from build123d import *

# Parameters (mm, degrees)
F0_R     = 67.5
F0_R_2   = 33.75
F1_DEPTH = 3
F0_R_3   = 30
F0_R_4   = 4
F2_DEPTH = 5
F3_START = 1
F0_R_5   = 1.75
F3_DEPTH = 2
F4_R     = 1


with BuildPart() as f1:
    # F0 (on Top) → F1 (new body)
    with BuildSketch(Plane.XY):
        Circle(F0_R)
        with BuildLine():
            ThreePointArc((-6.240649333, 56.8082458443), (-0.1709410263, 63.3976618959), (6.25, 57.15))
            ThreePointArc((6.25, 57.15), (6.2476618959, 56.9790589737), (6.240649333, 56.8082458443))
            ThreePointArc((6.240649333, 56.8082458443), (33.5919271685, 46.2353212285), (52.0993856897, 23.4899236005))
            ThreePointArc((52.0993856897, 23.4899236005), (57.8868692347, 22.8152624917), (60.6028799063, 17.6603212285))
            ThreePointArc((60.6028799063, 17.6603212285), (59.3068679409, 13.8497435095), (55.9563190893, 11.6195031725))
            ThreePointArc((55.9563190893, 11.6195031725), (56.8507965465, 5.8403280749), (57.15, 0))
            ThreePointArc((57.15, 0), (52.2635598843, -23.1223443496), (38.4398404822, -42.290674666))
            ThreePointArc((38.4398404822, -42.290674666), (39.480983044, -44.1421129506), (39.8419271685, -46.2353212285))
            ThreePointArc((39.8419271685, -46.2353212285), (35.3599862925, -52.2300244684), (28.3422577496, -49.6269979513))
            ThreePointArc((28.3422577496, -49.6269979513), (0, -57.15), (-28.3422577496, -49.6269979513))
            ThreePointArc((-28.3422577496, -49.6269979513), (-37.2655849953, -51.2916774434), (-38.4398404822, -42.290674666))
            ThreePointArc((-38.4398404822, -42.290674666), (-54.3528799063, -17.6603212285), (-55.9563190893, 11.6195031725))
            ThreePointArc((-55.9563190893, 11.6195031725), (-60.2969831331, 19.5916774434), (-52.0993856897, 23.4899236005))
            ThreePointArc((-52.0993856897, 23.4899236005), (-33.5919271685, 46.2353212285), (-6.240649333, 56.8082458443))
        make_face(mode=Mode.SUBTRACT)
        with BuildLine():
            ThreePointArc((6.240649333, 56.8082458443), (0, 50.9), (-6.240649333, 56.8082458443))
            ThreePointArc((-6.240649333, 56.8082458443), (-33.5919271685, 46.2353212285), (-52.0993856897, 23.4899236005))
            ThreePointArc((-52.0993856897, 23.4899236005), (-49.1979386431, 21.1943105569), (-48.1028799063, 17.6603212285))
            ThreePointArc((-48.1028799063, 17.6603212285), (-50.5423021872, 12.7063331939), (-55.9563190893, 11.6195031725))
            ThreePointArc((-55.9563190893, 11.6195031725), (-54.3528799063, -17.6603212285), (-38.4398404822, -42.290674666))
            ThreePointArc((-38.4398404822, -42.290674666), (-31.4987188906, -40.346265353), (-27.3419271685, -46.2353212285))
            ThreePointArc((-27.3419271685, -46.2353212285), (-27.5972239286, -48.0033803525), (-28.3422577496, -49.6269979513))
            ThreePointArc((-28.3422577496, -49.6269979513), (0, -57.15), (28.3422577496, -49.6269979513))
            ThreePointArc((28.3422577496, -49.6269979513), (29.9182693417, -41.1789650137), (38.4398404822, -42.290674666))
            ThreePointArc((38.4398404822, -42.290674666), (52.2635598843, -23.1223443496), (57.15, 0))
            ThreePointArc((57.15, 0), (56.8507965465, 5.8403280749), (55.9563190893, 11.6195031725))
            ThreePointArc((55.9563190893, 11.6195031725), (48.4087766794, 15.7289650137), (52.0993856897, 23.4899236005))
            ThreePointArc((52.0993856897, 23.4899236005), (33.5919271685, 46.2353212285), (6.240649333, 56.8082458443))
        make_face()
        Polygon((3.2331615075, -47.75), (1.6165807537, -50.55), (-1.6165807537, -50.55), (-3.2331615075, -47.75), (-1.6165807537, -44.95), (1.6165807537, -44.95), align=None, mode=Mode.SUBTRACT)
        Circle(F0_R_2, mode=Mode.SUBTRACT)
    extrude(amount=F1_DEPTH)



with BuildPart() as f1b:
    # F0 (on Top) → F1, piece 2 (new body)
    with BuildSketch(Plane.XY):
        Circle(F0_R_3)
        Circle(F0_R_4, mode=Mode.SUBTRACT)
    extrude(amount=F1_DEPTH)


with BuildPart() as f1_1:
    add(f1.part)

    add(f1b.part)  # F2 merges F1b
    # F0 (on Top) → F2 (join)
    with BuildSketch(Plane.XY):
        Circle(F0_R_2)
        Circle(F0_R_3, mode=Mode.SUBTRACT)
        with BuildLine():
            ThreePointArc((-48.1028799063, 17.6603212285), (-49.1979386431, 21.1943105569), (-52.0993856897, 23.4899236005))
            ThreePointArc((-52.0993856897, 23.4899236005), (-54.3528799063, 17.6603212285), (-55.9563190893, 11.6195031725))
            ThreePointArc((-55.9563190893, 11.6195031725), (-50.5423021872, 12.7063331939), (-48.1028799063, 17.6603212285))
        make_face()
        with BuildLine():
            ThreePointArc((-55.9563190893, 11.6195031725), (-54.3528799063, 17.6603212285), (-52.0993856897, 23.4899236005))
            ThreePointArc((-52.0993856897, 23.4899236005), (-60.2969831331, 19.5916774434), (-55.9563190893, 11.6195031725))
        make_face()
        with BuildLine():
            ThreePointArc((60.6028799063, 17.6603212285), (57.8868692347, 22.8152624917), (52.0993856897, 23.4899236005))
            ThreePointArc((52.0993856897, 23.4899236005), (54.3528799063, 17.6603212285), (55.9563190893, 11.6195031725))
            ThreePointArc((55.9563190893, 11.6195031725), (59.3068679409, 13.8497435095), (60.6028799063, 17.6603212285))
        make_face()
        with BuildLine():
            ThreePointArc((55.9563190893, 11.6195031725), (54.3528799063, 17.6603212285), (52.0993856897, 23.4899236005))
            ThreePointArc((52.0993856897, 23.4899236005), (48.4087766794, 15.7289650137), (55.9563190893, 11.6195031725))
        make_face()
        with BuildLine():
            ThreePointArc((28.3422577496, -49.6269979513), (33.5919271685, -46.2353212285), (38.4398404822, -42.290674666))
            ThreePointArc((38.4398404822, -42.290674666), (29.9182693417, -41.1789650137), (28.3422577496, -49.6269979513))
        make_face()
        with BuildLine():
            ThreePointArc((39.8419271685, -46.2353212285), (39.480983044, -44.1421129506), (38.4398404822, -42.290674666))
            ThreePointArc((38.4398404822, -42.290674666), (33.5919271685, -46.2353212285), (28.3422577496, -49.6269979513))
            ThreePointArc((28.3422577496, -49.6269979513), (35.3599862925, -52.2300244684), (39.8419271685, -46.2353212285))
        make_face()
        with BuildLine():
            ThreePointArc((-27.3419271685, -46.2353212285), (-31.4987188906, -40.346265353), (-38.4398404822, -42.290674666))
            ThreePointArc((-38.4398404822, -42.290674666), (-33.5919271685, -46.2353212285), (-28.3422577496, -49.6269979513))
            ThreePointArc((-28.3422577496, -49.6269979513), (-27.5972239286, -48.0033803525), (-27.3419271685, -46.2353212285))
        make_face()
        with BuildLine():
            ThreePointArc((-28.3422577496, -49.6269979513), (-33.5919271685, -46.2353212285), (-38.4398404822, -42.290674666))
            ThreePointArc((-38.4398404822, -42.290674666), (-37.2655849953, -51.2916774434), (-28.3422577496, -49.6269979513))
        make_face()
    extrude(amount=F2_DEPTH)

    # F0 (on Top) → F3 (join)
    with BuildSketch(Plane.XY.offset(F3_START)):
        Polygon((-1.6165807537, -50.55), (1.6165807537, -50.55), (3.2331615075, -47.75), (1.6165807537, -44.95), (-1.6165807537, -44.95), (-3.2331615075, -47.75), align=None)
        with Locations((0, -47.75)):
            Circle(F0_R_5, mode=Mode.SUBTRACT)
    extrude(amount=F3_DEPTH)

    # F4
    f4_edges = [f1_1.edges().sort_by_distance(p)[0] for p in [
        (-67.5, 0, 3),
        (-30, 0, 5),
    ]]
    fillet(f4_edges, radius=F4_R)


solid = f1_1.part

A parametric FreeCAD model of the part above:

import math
import FreeCAD as App
import Part
import Sketcher
Q = App.Units.Quantity


def edges_at(feature, points):
    """Names of the edges that pass closest to the given points."""
    edges = feature.Shape.Edges
    near = lambda p: min(range(len(edges)), key=lambda i: edges[i].distToShape(Part.Vertex(*p))[0])
    return sorted({f"Edge{near(p) + 1}" for p in points})


def add_polygon(sketch, points):
    """Adds a closed chain of lines whose ends are joined by coincident constraints."""
    first, n = sketch.GeometryCount, len(points)
    for a, b in zip(points, points[1:] + points[:1]):
        sketch.addGeometry(Part.LineSegment(App.Vector(*a, 0), App.Vector(*b, 0)), False)
    for i in range(n):
        sketch.addConstraint(Sketcher.Constraint("Coincident", first + i, 2, first + (i + 1) % n, 1))

doc = App.newDocument("Part")
body = doc.addObject("PartDesign::Body", "Body")

# Sketch on XY plane
sketch1 = body.newObject("Sketcher::SketchObject", "Sketch")
sketch1.AttachmentSupport = (doc.getObject("XY_Plane"), [""])
sketch1.MapMode = "FlatFace"
sketch1.addGeometry(Part.Circle(App.Vector(0, 0, 0), App.Vector(0, 0, 1), 67.5), False)  # 0
sketch1.addGeometry(Part.ArcOfCircle(Part.Circle(App.Vector(-33.59, -46.24, 0), App.Vector(0, 0, 1), 6.25), math.radians(141), math.radians(327)), False)  # 1
sketch1.addGeometry(Part.ArcOfCircle(Part.Circle(App.Vector(-33.59, -46.24, 0), App.Vector(0, 0, 1), 6.25), math.radians(0), math.radians(141)), False)  # 2
sketch1.addGeometry(Part.ArcOfCircle(Part.Circle(App.Vector(-33.59, -46.24, 0), App.Vector(0, 0, 1), 6.25), math.radians(-33), math.radians(0)), False)  # 3
add_polygon(sketch1, [(1.62, -44.95), (3.23, -47.75), (1.62, -50.55), (-1.62, -50.55), (-3.23, -47.75), (-1.62, -44.95)])  # lines 4-9
sketch1.addGeometry(Part.Circle(App.Vector(0, 0, 0), App.Vector(0, 0, 1), 33.75), False)  # 10
sketch1.addGeometry(Part.ArcOfCircle(Part.Circle(App.Vector(33.59, -46.24, 0), App.Vector(0, 0, 1), 6.25), math.radians(-147), math.radians(0)), False)  # 11
sketch1.addGeometry(Part.ArcOfCircle(Part.Circle(App.Vector(33.59, -46.24, 0), App.Vector(0, 0, 1), 6.25), math.radians(39), math.radians(213)), False)  # 12
sketch1.addGeometry(Part.ArcOfCircle(Part.Circle(App.Vector(33.59, -46.24, 0), App.Vector(0, 0, 1), 6.25), math.radians(0), math.radians(39)), False)  # 13
sketch1.addGeometry(Part.ArcOfCircle(Part.Circle(App.Vector(-54.35, 17.66, 0), App.Vector(0, 0, 1), 6.25), math.radians(69), math.radians(255)), False)  # 14
sketch1.addGeometry(Part.ArcOfCircle(Part.Circle(App.Vector(-54.35, 17.66, 0), App.Vector(0, 0, 1), 6.25), math.radians(0), math.radians(69)), False)  # 15
sketch1.addGeometry(Part.ArcOfCircle(Part.Circle(App.Vector(-54.35, 17.66, 0), App.Vector(0, 0, 1), 6.25), math.radians(-105), math.radians(0)), False)  # 16
sketch1.addGeometry(Part.ArcOfCircle(Part.Circle(App.Vector(0, 57.15, 0), App.Vector(0, 0, 1), 6.25), math.radians(-3.13), math.radians(0)), False)  # 17
sketch1.addGeometry(Part.ArcOfCircle(Part.Circle(App.Vector(0, 57.15, 0), App.Vector(0, 0, 1), 6.25), math.radians(-177), math.radians(-3)), False)  # 18
sketch1.addGeometry(Part.ArcOfCircle(Part.Circle(App.Vector(0, 57.15, 0), App.Vector(0, 0, 1), 6.25), math.radians(0), math.radians(183)), False)  # 19
sketch1.addGeometry(Part.ArcOfCircle(Part.Circle(App.Vector(54.35, 17.66, 0), App.Vector(0, 0, 1), 6.25), math.radians(-75), math.radians(0)), False)  # 20
sketch1.addGeometry(Part.ArcOfCircle(Part.Circle(App.Vector(54.35, 17.66, 0), App.Vector(0, 0, 1), 6.25), math.radians(111), math.radians(285)), False)  # 21
sketch1.addGeometry(Part.ArcOfCircle(Part.Circle(App.Vector(54.35, 17.66, 0), App.Vector(0, 0, 1), 6.25), math.radians(0), math.radians(111)), False)  # 22
sketch1.addConstraint(Sketcher.Constraint("Tangent", 1, 1, 2, 2))
sketch1.addConstraint(Sketcher.Constraint("Tangent", 2, 1, 3, 2))
sketch1.addConstraint(Sketcher.Constraint("Tangent", 3, 1, 1, 2))
sketch1.addConstraint(Sketcher.Constraint("Tangent", 11, 1, 12, 2))
sketch1.addConstraint(Sketcher.Constraint("Tangent", 12, 1, 13, 2))
sketch1.addConstraint(Sketcher.Constraint("Tangent", 13, 1, 11, 2))
sketch1.addConstraint(Sketcher.Constraint("Tangent", 14, 1, 15, 2))
sketch1.addConstraint(Sketcher.Constraint("Tangent", 15, 1, 16, 2))
sketch1.addConstraint(Sketcher.Constraint("Tangent", 16, 1, 14, 2))
sketch1.addConstraint(Sketcher.Constraint("Tangent", 17, 1, 18, 2))
sketch1.addConstraint(Sketcher.Constraint("Tangent", 18, 1, 19, 2))
sketch1.addConstraint(Sketcher.Constraint("Tangent", 19, 1, 17, 2))
sketch1.addConstraint(Sketcher.Constraint("Tangent", 20, 1, 21, 2))
sketch1.addConstraint(Sketcher.Constraint("Tangent", 21, 1, 22, 2))
sketch1.addConstraint(Sketcher.Constraint("Tangent", 22, 1, 20, 2))
sketch1.addConstraint(Sketcher.Constraint("Horizontal", 6))
sketch1.addConstraint(Sketcher.Constraint("Horizontal", 9))
sketch1.addConstraint(Sketcher.Constraint("Coincident", 0, 3, -1, 1))
sketch1.addConstraint(Sketcher.Constraint("Coincident", 10, 3, -1, 1))
sketch1.addConstraint(Sketcher.Constraint("Equal", 3, 11))
sketch1.addConstraint(Sketcher.Constraint("Equal", 13, 14))
sketch1.addConstraint(Sketcher.Constraint("Equal", 16, 17))
sketch1.addConstraint(Sketcher.Constraint("Equal", 19, 20))
sketch1.addConstraint(Sketcher.Constraint("Symmetric", 1, 3, 11, 3, -2))
sketch1.addConstraint(Sketcher.Constraint("Symmetric", 14, 3, 20, 3, -2))
sketch1.addConstraint(Sketcher.Constraint("Symmetric", 4, 2, 7, 2, -2))
sketch1.addConstraint(Sketcher.Constraint("Symmetric", 17, 1, 18, 1, -2))
sketch1.addConstraint(Sketcher.Constraint("Parallel", 4, 7))
sketch1.addConstraint(Sketcher.Constraint("Parallel", 5, 8))
sketch1.addConstraint(Sketcher.Constraint("Horizontal", 13, 3, 2, 1))
sketch1.addConstraint(Sketcher.Constraint("Horizontal", 3, 1, 11, 1))
sketch1.addConstraint(Sketcher.Constraint("Horizontal", 1, 1, 12, 1))
sketch1.addConstraint(Sketcher.Constraint("Horizontal", 2, 1, 13, 1))
sketch1.addConstraint(Sketcher.Constraint("Horizontal", 22, 3, 15, 1))
sketch1.addConstraint(Sketcher.Constraint("Horizontal", 18, 3, 19, 1))
sketch1.addConstraint(Sketcher.Constraint("Horizontal", 16, 1, 20, 1))
sketch1.addConstraint(Sketcher.Constraint("Horizontal", 14, 1, 21, 1))
sketch1.addConstraint(Sketcher.Constraint("Horizontal", 15, 1, 22, 1))
sketch1.addConstraint(Sketcher.Constraint("Vertical", 6, 2, 8, 2))
sketch1.addConstraint(Sketcher.Constraint("Vertical", 5, 2, 9, 2))
sketch1.addConstraint(Sketcher.Constraint("Diameter", 0, Q("135 mm")))
sketch1.addConstraint(Sketcher.Constraint("Diameter", 10, Q("67.5 mm")))
sketch1.addConstraint(Sketcher.Constraint("Angle", 4, Q("-60 deg")))
sketch1.addConstraint(Sketcher.Constraint("Radius", 1, Q("6.25 mm")))
sketch1.addConstraint(Sketcher.Constraint("DistanceY", 5, 2, 4, 2, Q("2.8 mm")))
sketch1.addConstraint(Sketcher.Constraint("DistanceY", -1, 1, 17, 3, Q("57.15 mm")))
sketch1.addConstraint(Sketcher.Constraint("DistanceY", 4, 2, -1, 1, Q("47.75 mm")))
sketch1.addConstraint(Sketcher.Constraint("DistanceX", 6, 2, 6, 1, Q("3.233162 mm")))
sketch1.addConstraint(Sketcher.Constraint("DistanceX", 18, 1, 17, 1, Q("12.481299 mm")))
sketch1.addConstraint(Sketcher.Constraint("DistanceY", 1, 3, -1, 1, Q("46.235321 mm")))
sketch1.addConstraint(Sketcher.Constraint("DistanceX", 14, 3, -1, 1, Q("54.35288 mm")))
sketch1.addConstraint(Sketcher.Constraint("DistanceY", -1, 1, 14, 3, Q("17.660321 mm")))
sketch1.addConstraint(Sketcher.Constraint("DistanceX", 1, 1, -1, 1, Q("38.43984 mm")))
sketch1.addConstraint(Sketcher.Constraint("DistanceX", 16, 1, -1, 1, Q("55.956319 mm")))
sketch1.addConstraint(Sketcher.Constraint("DistanceX", 3, 1, 2, 1, Q("1.000331 mm")))
sketch1.addConstraint(Sketcher.Constraint("DistanceX", 2, 1, 4, 2, Q("30.575089 mm")))
sketch1.addConstraint(Sketcher.Constraint("DistanceY", 16, 1, 14, 1, Q("11.87042 mm")))
pad1 = body.newObject("PartDesign::Pad", "Pad")
pad1.Profile = sketch1
pad1.Length = 3
body2 = doc.addObject("PartDesign::Body", "Body001")

# Sketch on XY plane
sketch2 = body2.newObject("Sketcher::SketchObject", "Sketch001")
sketch2.AttachmentSupport = (doc.getObject("XY_Plane001"), [""])
sketch2.MapMode = "FlatFace"
sketch2.addGeometry(Part.Circle(App.Vector(0, 0, 0), App.Vector(0, 0, 1), 30), False)
sketch2.addGeometry(Part.Circle(App.Vector(0, 0, 0), App.Vector(0, 0, 1), 4), False)
sketch2.addConstraint(Sketcher.Constraint("Coincident", 0, 3, -1, 1))
sketch2.addConstraint(Sketcher.Constraint("Coincident", 1, 3, -1, 1))
sketch2.addConstraint(Sketcher.Constraint("Diameter", 0, Q("60 mm")))
sketch2.addConstraint(Sketcher.Constraint("Diameter", 1, Q("8 mm")))
pad2 = body2.newObject("PartDesign::Pad", "Pad001")
pad2.Profile = sketch2
pad2.Length = 3
body.AllowCompound = True
doc.recompute()

boolean = body.newObject("PartDesign::Boolean", "Boolean")
boolean.Type = "Fuse"
boolean.addObjects([body2])

# Sketch on XY plane
sketch3 = body.newObject("Sketcher::SketchObject", "Sketch002")
sketch3.AttachmentSupport = (doc.getObject("XY_Plane"), [""])
sketch3.MapMode = "FlatFace"
sketch3.addGeometry(Part.Circle(App.Vector(0, 0, 0), App.Vector(0, 0, 1), 33.8), False)
sketch3.addGeometry(Part.Circle(App.Vector(0, 0, 0), App.Vector(0, 0, 1), 30), False)
sketch3.addGeometry(Part.ArcOfCircle(Part.Circle(App.Vector(-54.4, 17.7, 0), App.Vector(0, 0, 1), 6.2), math.radians(0), math.radians(69)), False)
sketch3.addGeometry(Part.ArcOfCircle(Part.Circle(App.Vector(-54.4, 17.7, 0), App.Vector(0, 0, 1), 6.2), math.radians(69), math.radians(255)), False)
sketch3.addGeometry(Part.ArcOfCircle(Part.Circle(App.Vector(-54.4, 17.7, 0), App.Vector(0, 0, 1), 6.2), math.radians(-105), math.radians(0)), False)
sketch3.addGeometry(Part.ArcOfCircle(Part.Circle(App.Vector(54.4, 17.7, 0), App.Vector(0, 0, 1), 6.2), math.radians(0), math.radians(111)), False)
sketch3.addGeometry(Part.ArcOfCircle(Part.Circle(App.Vector(54.4, 17.7, 0), App.Vector(0, 0, 1), 6.2), math.radians(111), math.radians(285)), False)
sketch3.addGeometry(Part.ArcOfCircle(Part.Circle(App.Vector(54.4, 17.7, 0), App.Vector(0, 0, 1), 6.2), math.radians(-75), math.radians(0)), False)
sketch3.addGeometry(Part.ArcOfCircle(Part.Circle(App.Vector(33.6, -46.2, 0), App.Vector(0, 0, 1), 6.2), math.radians(39), math.radians(213)), False)
sketch3.addGeometry(Part.ArcOfCircle(Part.Circle(App.Vector(33.6, -46.2, 0), App.Vector(0, 0, 1), 6.2), math.radians(-147), math.radians(0)), False)
sketch3.addGeometry(Part.ArcOfCircle(Part.Circle(App.Vector(33.6, -46.2, 0), App.Vector(0, 0, 1), 6.3), math.radians(0), math.radians(39)), False)
sketch3.addGeometry(Part.ArcOfCircle(Part.Circle(App.Vector(-33.6, -46.2, 0), App.Vector(0, 0, 1), 6.2), math.radians(0), math.radians(141)), False)
sketch3.addGeometry(Part.ArcOfCircle(Part.Circle(App.Vector(-33.6, -46.2, 0), App.Vector(0, 0, 1), 6.2), math.radians(141), math.radians(327)), False)
sketch3.addGeometry(Part.ArcOfCircle(Part.Circle(App.Vector(-33.6, -46.2, 0), App.Vector(0, 0, 1), 6.2), math.radians(-33), math.radians(0)), False)
sketch3.addConstraint(Sketcher.Constraint("Tangent", 2, 2, 3, 1))
sketch3.addConstraint(Sketcher.Constraint("Tangent", 3, 2, 4, 1))
sketch3.addConstraint(Sketcher.Constraint("Tangent", 4, 2, 2, 1))
sketch3.addConstraint(Sketcher.Constraint("Tangent", 5, 2, 6, 1))
sketch3.addConstraint(Sketcher.Constraint("Tangent", 6, 2, 7, 1))
sketch3.addConstraint(Sketcher.Constraint("Tangent", 7, 2, 5, 1))
sketch3.addConstraint(Sketcher.Constraint("Tangent", 8, 2, 9, 1))
sketch3.addConstraint(Sketcher.Constraint("Tangent", 9, 2, 10, 1))
sketch3.addConstraint(Sketcher.Constraint("Tangent", 10, 2, 8, 1))
sketch3.addConstraint(Sketcher.Constraint("Tangent", 11, 2, 12, 1))
sketch3.addConstraint(Sketcher.Constraint("Tangent", 12, 2, 13, 1))
sketch3.addConstraint(Sketcher.Constraint("Tangent", 13, 2, 11, 1))
sketch3.addConstraint(Sketcher.Constraint("Coincident", 0, 3, -1, 1))
sketch3.addConstraint(Sketcher.Constraint("Coincident", 1, 3, -1, 1))
sketch3.addConstraint(Sketcher.Constraint("Equal", 4, 5))
sketch3.addConstraint(Sketcher.Constraint("Equal", 7, 8))
sketch3.addConstraint(Sketcher.Constraint("Equal", 10, 11))
sketch3.addConstraint(Sketcher.Constraint("Symmetric", 2, 3, 5, 3, -2))
sketch3.addConstraint(Sketcher.Constraint("Symmetric", 8, 3, 11, 3, -2))
sketch3.addConstraint(Sketcher.Constraint("Horizontal", 7, 3, 4, 2))
sketch3.addConstraint(Sketcher.Constraint("Horizontal", 2, 2, 5, 2))
sketch3.addConstraint(Sketcher.Constraint("Horizontal", 3, 2, 6, 2))
sketch3.addConstraint(Sketcher.Constraint("Horizontal", 4, 2, 7, 2))
sketch3.addConstraint(Sketcher.Constraint("Horizontal", 13, 3, 9, 2))
sketch3.addConstraint(Sketcher.Constraint("Horizontal", 10, 2, 11, 2))
sketch3.addConstraint(Sketcher.Constraint("Horizontal", 8, 2, 12, 2))
sketch3.addConstraint(Sketcher.Constraint("Horizontal", 9, 2, 13, 2))
sketch3.addConstraint(Sketcher.Constraint("Diameter", 1, Q("60 mm")))
sketch3.addConstraint(Sketcher.Constraint("Diameter", 0, Q("67.5 mm")))
sketch3.addConstraint(Sketcher.Constraint("Radius", 2, Q("6.25 mm")))
sketch3.addConstraint(Sketcher.Constraint("DistanceX", 2, 3, -1, 1, Q("54.35288 mm")))
sketch3.addConstraint(Sketcher.Constraint("DistanceY", -1, 1, 2, 3, Q("17.660321 mm")))
sketch3.addConstraint(Sketcher.Constraint("DistanceY", 8, 3, -1, 1, Q("46.235321 mm")))
sketch3.addConstraint(Sketcher.Constraint("DistanceX", 3, 2, -1, 1, Q("55.956319 mm")))
sketch3.addConstraint(Sketcher.Constraint("DistanceX", -1, 1, 10, 2, Q("38.43984 mm")))
sketch3.addConstraint(Sketcher.Constraint("DistanceY", 3, 2, 2, 2, Q("11.87042 mm")))
sketch3.addConstraint(Sketcher.Constraint("DistanceX", 8, 2, 10, 3, Q("5.249669 mm")))
sketch3.addConstraint(Sketcher.Constraint("DistanceX", 9, 2, 6, 2, Q("16.114392 mm")))
pad3 = body.newObject("PartDesign::Pad", "Pad002")
pad3.Profile = sketch3
pad3.Length = 5

# Sketch on XY plane
sketch4 = body.newObject("Sketcher::SketchObject", "Sketch003")
sketch4.AttachmentSupport = (doc.getObject("XY_Plane"), [""])
sketch4.MapMode = "FlatFace"
sketch4.AttachmentOffset = App.Placement(App.Vector(0, 0, 1), App.Rotation())
add_polygon(sketch4, [(-1.6, -50.5), (1.6, -50.5), (3.2, -47.8), (1.6, -45), (-1.6, -45), (-3.2, -47.8)])  # lines 0-5
sketch4.addGeometry(Part.Circle(App.Vector(0, -47.8, 0), App.Vector(0, 0, 1), 1.8), False)  # 6
sketch4.addConstraint(Sketcher.Constraint("Horizontal", 0))
sketch4.addConstraint(Sketcher.Constraint("Horizontal", 3))
sketch4.addConstraint(Sketcher.Constraint("Symmetric", 1, 2, 4, 2, -2))
sketch4.addConstraint(Sketcher.Constraint("PointOnObject", 6, 3, -2))
sketch4.addConstraint(Sketcher.Constraint("Parallel", 1, 4))
sketch4.addConstraint(Sketcher.Constraint("Parallel", 2, 5))
sketch4.addConstraint(Sketcher.Constraint("Horizontal", 6, 3, 1, 2))
sketch4.addConstraint(Sketcher.Constraint("Vertical", 0, 2, 2, 2))
sketch4.addConstraint(Sketcher.Constraint("Vertical", 3, 2, 5, 2))
sketch4.addConstraint(Sketcher.Constraint("Diameter", 6, Q("3.5 mm")))
sketch4.addConstraint(Sketcher.Constraint("Angle", 1, Q("60 deg")))
sketch4.addConstraint(Sketcher.Constraint("DistanceY", 0, 2, 6, 3, Q("2.8 mm")))
sketch4.addConstraint(Sketcher.Constraint("DistanceY", 6, 3, -1, 1, Q("47.75 mm")))
sketch4.addConstraint(Sketcher.Constraint("DistanceX", 0, 1, 0, 2, Q("3.233162 mm")))
pad4 = body.newObject("PartDesign::Pad", "Pad003")
pad4.Profile = sketch4
pad4.Length = 2
doc.recompute()

fillet = body.newObject("PartDesign::Fillet", "Fillet")
fillet.Base = (pad4, edges_at(pad4, [(-67.5, 0, 3), (-30, 0, 5)]))
fillet.Radius = 1

doc.recompute()
